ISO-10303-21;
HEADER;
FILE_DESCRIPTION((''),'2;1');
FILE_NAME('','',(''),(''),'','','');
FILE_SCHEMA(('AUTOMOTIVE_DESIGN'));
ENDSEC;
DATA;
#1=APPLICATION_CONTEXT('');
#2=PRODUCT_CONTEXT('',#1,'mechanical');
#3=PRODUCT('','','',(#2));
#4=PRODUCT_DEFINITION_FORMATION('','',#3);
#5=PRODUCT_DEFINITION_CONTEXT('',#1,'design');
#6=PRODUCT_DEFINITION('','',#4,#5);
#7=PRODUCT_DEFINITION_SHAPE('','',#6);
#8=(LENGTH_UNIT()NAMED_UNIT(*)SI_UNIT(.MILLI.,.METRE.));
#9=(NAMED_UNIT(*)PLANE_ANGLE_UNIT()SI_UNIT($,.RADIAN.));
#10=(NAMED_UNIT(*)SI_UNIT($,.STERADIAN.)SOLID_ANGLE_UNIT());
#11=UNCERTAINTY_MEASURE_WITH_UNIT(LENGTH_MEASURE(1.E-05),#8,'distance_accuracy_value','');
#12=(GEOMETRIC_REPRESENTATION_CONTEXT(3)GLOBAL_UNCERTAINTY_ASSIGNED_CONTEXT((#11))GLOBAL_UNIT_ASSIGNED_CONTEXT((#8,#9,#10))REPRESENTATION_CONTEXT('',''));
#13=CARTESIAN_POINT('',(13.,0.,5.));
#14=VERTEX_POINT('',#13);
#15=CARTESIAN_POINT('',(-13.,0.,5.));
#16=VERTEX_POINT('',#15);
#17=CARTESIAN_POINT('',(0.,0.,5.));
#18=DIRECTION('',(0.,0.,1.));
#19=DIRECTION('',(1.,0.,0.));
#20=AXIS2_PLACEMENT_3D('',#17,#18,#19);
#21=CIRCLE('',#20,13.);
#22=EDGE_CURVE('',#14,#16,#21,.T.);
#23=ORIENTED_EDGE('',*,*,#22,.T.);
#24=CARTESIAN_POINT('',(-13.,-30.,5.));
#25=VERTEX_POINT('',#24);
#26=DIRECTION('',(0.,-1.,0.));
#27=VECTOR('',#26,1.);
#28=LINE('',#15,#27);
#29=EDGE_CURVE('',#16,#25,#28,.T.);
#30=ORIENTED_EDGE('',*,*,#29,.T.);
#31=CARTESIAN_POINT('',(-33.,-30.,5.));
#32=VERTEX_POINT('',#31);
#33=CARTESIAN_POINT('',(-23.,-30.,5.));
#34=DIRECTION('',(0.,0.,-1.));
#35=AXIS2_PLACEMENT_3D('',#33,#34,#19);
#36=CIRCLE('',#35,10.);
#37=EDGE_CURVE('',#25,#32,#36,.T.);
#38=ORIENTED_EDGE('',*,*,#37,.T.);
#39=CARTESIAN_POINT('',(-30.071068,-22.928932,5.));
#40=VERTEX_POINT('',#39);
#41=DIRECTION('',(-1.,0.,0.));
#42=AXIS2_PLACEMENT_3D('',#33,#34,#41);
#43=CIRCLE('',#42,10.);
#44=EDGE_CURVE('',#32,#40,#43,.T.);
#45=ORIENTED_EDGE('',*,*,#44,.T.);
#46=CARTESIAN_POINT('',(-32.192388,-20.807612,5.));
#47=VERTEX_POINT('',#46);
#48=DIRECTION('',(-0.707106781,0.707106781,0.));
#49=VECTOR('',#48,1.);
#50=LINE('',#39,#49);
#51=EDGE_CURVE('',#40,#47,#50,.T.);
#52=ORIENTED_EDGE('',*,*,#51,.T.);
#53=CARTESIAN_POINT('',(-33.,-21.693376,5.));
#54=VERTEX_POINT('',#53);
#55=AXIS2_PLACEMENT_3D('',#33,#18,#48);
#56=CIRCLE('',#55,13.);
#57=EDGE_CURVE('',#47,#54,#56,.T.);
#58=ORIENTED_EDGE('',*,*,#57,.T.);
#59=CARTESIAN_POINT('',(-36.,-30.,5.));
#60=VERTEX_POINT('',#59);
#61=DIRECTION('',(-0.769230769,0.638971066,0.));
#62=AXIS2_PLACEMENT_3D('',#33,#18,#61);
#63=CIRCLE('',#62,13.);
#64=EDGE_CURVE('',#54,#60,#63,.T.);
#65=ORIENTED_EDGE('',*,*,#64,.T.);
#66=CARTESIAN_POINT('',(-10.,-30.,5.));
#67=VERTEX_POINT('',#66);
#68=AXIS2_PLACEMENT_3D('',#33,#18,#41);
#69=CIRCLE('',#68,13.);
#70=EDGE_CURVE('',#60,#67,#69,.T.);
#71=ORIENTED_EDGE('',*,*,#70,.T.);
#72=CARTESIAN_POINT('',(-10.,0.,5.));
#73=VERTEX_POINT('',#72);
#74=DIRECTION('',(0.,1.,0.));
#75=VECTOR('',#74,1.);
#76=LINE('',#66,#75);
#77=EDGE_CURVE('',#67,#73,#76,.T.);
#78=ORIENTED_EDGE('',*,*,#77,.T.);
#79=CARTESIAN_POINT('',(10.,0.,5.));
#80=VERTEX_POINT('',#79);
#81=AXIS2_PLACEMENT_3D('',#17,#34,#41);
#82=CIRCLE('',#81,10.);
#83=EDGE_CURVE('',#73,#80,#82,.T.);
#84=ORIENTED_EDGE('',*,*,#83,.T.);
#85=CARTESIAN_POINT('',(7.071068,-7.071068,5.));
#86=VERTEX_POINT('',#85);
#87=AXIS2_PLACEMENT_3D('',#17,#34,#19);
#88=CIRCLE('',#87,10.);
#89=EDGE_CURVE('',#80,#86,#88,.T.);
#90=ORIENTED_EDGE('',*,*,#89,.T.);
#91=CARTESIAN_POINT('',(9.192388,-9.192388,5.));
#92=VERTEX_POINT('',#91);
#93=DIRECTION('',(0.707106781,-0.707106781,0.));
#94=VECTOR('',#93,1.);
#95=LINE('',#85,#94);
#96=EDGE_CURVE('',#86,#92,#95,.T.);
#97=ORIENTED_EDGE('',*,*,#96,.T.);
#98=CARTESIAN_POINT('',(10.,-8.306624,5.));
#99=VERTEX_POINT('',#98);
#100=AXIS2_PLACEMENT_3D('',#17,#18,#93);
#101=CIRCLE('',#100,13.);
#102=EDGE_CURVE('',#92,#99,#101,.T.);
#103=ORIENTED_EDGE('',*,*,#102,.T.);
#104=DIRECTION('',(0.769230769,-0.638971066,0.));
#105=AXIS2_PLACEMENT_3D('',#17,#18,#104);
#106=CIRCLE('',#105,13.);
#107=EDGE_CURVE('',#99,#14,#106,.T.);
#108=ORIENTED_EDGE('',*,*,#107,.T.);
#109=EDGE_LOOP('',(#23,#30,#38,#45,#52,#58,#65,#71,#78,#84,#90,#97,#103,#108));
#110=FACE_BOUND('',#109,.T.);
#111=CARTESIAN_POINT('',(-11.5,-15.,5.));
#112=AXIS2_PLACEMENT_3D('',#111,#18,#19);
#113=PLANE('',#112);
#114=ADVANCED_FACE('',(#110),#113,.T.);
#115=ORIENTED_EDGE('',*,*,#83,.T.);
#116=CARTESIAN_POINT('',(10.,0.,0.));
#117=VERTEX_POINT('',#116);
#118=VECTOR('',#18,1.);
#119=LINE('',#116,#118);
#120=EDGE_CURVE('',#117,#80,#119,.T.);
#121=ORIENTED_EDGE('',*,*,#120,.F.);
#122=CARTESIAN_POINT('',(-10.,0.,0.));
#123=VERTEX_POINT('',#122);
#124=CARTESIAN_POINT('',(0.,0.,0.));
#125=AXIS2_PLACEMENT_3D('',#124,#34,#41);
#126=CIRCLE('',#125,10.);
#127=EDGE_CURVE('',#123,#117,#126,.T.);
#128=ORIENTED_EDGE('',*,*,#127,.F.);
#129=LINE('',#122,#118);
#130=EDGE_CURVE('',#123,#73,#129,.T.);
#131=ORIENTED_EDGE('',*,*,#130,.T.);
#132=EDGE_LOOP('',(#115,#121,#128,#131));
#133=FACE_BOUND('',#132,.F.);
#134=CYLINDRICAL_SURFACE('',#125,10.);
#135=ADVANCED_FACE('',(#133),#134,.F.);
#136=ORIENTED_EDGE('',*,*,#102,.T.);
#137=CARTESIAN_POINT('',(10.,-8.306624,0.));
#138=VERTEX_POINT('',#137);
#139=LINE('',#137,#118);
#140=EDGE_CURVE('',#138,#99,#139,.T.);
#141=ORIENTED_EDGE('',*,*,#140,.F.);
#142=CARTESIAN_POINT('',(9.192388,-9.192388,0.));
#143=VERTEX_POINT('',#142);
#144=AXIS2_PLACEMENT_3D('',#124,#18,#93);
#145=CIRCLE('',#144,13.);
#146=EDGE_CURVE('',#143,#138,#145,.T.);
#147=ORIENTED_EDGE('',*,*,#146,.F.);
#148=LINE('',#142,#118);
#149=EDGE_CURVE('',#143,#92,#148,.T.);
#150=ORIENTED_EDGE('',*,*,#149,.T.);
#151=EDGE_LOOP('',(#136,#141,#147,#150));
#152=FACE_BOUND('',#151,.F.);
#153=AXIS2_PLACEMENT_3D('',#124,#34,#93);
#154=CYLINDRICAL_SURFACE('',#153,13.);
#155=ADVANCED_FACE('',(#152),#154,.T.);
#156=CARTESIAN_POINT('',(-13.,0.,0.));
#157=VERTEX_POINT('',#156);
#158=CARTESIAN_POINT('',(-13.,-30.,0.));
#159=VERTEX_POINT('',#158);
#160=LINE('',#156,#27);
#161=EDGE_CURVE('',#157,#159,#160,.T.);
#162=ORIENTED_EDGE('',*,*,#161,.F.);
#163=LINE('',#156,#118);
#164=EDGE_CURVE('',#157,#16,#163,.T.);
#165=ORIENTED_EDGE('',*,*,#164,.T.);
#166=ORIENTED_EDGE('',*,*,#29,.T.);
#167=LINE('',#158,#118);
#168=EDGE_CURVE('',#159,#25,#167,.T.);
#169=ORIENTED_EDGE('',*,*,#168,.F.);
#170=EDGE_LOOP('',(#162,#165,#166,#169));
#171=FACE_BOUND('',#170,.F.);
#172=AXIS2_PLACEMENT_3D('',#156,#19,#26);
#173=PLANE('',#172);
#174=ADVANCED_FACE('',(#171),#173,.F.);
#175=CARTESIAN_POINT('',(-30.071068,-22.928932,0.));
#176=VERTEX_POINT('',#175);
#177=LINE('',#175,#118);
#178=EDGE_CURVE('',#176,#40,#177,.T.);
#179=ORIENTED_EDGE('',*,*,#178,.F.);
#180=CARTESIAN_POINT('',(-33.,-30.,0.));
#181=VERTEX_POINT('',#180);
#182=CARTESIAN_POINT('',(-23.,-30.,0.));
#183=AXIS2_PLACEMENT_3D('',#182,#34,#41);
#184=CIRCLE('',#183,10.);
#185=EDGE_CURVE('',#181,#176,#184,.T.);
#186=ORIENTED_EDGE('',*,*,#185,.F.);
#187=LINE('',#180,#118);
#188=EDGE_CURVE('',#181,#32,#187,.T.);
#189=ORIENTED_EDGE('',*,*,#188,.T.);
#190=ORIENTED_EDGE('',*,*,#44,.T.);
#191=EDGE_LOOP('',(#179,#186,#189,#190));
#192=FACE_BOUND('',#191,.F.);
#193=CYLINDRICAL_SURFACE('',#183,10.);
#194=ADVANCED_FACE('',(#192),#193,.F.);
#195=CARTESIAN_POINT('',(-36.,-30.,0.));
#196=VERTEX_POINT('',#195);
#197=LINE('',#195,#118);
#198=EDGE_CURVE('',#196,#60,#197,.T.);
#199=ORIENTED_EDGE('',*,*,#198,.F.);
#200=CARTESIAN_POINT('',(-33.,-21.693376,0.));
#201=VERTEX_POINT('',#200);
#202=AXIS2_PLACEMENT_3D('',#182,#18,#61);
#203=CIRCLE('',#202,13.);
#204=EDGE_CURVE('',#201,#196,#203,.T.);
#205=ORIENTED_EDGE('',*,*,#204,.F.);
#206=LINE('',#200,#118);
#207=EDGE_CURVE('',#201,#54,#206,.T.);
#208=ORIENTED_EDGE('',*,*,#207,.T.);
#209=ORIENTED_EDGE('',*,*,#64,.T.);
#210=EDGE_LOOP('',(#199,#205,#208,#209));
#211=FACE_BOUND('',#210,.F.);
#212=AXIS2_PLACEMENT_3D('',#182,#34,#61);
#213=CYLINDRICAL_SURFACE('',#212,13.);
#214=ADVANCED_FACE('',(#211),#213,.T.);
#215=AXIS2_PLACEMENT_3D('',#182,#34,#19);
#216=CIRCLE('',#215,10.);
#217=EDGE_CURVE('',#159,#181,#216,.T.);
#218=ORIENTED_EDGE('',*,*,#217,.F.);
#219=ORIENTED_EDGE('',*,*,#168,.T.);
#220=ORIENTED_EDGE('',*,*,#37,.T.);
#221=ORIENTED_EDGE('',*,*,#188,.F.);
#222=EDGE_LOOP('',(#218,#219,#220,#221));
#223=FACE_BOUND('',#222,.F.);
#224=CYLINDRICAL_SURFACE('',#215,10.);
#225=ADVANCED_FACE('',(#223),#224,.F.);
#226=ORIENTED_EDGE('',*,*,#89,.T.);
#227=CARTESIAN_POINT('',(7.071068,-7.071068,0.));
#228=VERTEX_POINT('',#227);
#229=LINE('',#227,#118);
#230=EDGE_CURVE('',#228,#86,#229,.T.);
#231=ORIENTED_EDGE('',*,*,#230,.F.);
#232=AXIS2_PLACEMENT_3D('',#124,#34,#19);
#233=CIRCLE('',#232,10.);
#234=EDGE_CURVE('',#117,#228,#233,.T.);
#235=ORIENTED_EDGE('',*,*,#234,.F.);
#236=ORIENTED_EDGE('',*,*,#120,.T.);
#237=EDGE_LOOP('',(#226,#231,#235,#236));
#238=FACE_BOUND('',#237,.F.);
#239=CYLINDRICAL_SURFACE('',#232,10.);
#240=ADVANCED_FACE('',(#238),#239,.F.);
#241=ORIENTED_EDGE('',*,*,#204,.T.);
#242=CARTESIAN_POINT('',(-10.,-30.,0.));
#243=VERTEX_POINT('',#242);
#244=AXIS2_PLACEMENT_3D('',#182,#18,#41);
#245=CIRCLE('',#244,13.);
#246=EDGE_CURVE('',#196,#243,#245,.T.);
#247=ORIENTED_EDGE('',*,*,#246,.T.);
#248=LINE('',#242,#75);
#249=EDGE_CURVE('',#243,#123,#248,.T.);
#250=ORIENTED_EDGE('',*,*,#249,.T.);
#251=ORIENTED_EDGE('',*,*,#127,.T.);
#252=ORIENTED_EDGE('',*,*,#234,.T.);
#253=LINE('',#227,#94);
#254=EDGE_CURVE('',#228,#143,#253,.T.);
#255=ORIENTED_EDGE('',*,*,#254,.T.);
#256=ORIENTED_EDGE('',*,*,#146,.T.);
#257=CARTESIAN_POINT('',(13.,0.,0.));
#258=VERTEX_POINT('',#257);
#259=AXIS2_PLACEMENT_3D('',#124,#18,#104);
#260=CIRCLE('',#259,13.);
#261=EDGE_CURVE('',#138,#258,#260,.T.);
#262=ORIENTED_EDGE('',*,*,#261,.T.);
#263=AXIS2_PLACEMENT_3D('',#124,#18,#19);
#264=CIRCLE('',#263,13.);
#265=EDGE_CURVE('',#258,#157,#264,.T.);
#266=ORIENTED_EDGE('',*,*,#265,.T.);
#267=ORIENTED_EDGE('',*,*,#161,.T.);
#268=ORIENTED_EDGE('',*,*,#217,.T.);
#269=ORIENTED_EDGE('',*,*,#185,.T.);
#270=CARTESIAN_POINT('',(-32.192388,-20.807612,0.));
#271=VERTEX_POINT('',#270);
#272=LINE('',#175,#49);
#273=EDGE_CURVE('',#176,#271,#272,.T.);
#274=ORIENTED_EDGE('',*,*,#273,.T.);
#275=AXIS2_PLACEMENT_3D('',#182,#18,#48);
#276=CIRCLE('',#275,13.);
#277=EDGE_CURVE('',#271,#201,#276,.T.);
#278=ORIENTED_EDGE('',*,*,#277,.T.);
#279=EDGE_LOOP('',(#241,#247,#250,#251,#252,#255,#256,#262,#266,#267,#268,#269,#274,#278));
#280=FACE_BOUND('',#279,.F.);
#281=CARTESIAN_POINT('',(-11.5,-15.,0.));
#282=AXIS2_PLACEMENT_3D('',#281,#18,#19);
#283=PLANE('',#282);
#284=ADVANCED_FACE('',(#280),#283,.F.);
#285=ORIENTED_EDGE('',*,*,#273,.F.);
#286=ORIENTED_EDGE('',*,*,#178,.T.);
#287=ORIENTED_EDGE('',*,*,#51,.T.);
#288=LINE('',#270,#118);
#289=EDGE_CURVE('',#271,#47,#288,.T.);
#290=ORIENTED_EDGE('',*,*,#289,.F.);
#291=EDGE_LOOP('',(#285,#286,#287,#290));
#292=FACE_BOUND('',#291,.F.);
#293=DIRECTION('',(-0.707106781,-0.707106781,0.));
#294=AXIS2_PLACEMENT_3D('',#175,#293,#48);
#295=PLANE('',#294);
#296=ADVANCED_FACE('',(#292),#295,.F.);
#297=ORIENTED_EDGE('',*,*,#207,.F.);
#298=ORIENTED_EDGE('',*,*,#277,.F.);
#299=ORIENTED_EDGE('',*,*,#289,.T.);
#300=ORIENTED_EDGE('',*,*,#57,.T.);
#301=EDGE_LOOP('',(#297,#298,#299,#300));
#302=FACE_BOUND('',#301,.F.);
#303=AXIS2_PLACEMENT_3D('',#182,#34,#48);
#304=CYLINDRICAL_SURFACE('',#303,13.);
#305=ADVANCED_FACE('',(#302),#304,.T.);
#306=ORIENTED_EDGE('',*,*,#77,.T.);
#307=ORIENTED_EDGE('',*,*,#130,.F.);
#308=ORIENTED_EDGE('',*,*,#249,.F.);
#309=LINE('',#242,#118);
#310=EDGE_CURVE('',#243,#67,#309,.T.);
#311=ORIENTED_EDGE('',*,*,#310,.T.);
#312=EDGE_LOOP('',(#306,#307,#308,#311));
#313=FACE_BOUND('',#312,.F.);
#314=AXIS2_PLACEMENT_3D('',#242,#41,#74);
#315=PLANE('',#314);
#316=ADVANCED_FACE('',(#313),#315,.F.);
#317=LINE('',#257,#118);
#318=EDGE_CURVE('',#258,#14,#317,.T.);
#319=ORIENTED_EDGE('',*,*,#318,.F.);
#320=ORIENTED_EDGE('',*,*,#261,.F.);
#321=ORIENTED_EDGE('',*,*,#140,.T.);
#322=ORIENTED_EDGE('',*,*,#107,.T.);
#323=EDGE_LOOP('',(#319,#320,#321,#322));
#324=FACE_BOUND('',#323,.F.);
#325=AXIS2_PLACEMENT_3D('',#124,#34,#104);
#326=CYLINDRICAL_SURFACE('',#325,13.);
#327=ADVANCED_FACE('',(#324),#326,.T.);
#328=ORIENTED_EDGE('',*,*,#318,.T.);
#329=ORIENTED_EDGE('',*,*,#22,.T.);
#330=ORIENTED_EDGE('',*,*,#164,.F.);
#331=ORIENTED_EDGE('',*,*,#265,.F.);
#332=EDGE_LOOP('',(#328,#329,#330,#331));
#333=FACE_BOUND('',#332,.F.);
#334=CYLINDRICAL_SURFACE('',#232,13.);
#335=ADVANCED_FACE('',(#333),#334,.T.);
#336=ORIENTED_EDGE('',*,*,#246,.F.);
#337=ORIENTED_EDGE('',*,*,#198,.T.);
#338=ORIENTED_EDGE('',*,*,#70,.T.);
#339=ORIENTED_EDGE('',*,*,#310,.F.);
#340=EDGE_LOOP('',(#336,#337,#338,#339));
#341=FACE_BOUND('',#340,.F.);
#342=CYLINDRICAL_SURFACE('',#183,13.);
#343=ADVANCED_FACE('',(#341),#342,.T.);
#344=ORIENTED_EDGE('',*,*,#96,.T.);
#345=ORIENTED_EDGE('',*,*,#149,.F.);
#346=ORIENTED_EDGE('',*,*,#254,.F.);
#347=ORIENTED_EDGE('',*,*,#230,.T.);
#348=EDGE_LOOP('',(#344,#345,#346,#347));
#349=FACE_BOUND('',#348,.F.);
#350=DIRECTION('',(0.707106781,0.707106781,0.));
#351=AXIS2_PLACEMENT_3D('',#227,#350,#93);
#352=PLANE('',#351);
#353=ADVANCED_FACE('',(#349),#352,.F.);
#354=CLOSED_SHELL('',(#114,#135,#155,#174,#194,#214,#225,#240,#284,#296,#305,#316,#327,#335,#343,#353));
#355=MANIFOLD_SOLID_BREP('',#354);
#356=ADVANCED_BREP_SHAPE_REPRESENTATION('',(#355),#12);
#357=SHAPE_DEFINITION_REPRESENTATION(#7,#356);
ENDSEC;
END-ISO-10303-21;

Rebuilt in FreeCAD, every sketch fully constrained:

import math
import FreeCAD as App
import Part
import Sketcher
from FreeCAD import Vector
Q = App.Units.Quantity

doc = App.newDocument("Part")
body = doc.addObject("PartDesign::Body", "Body")

sketch1 = doc.addObject("Sketcher::SketchObject", "Sketch")
body.addObject(sketch1)
sketch1.AttachmentSupport = (doc.XY_Plane, [""])
sketch1.MapMode = "FlatFace"
sketch1.addGeometry(Part.LineSegment(Vector(-10, -30, 0), Vector(-10, 0, 0)), False)
sketch1.addGeometry(Part.ArcOfCircle(Part.Circle(Vector(0, 0, 0), Vector(0, 0, 1), 10), math.radians(0), math.radians(180)), False)
sketch1.addGeometry(Part.ArcOfCircle(Part.Circle(Vector(0, 0, 0), Vector(0, 0, 1), 10), math.radians(-45), math.radians(0)), False)
sketch1.addGeometry(Part.LineSegment(Vector(7.1, -7.1, 0), Vector(9.2, -9.2, 0)), False)
sketch1.addGeometry(Part.ArcOfCircle(Part.Circle(Vector(0, 0, 0), Vector(0, 0, 1), 13), math.radians(-45), math.radians(-39.72)), False)
sketch1.addGeometry(Part.ArcOfCircle(Part.Circle(Vector(0, 0, 0), Vector(0, 0, 1), 13), math.radians(-40), math.radians(0)), False)
sketch1.addGeometry(Part.ArcOfCircle(Part.Circle(Vector(0, 0, 0), Vector(0, 0, 1), 13), math.radians(0), math.radians(180)), False)
sketch1.addGeometry(Part.LineSegment(Vector(-13, 0, 0), Vector(-13, -30, 0)), False)
sketch1.addGeometry(Part.ArcOfCircle(Part.Circle(Vector(-23, -30, 0), Vector(0, 0, 1), 10), math.radians(180), math.radians(360)), False)
sketch1.addGeometry(Part.ArcOfCircle(Part.Circle(Vector(-23, -30, 0), Vector(0, 0, 1), 10), math.radians(135), math.radians(180)), False)
sketch1.addGeometry(Part.LineSegment(Vector(-30.1, -22.9, 0), Vector(-32.2, -20.8, 0)), False)
sketch1.addGeometry(Part.ArcOfCircle(Part.Circle(Vector(-23, -30, 0), Vector(0, 0, 1), 13), math.radians(135), math.radians(140.28)), False)
sketch1.addGeometry(Part.ArcOfCircle(Part.Circle(Vector(-23, -30, 0), Vector(0, 0, 1), 13), math.radians(140), math.radians(180)), False)
sketch1.addGeometry(Part.ArcOfCircle(Part.Circle(Vector(-23, -30, 0), Vector(0, 0, 1), 13), math.radians(180), math.radians(360)), False)
sketch1.addConstraint(Sketcher.Constraint("Tangent", 0, 2, 1, 2))
sketch1.addConstraint(Sketcher.Constraint("Tangent", 1, 1, 2, 2))
sketch1.addConstraint(Sketcher.Constraint("Coincident", 2, 1, 3, 1))
sketch1.addConstraint(Sketcher.Constraint("Coincident", 3, 2, 4, 1))
sketch1.addConstraint(Sketcher.Constraint("Tangent", 4, 2, 5, 1))
sketch1.addConstraint(Sketcher.Constraint("Tangent", 5, 2, 6, 1))
sketch1.addConstraint(Sketcher.Constraint("Tangent", 6, 2, 7, 1))
sketch1.addConstraint(Sketcher.Constraint("Tangent", 7, 2, 8, 2))
sketch1.addConstraint(Sketcher.Constraint("Tangent", 8, 1, 9, 2))
sketch1.addConstraint(Sketcher.Constraint("Coincident", 9, 1, 10, 1))
sketch1.addConstraint(Sketcher.Constraint("Coincident", 10, 2, 11, 1))
sketch1.addConstraint(Sketcher.Constraint("Tangent", 11, 2, 12, 1))
sketch1.addConstraint(Sketcher.Constraint("Tangent", 12, 2, 13, 1))
sketch1.addConstraint(Sketcher.Constraint("Tangent", 13, 2, 0, 1))
sketch1.addConstraint(Sketcher.Constraint("Vertical", 0))
sketch1.addConstraint(Sketcher.Constraint("Vertical", 7))
sketch1.addConstraint(Sketcher.Constraint("Coincident", 1, 3, -1, 1))
sketch1.addConstraint(Sketcher.Constraint("Coincident", 4, 3, -1, 1))
sketch1.addConstraint(Sketcher.Constraint("Coincident", 6, 3, -1, 1))
sketch1.addConstraint(Sketcher.Constraint("Coincident", 11, 3, 8, 3))
sketch1.addConstraint(Sketcher.Constraint("Coincident", 13, 3, 8, 3))
sketch1.addConstraint(Sketcher.Constraint("Equal", 1, 2))
sketch1.addConstraint(Sketcher.Constraint("Equal", 2, 8))
sketch1.addConstraint(Sketcher.Constraint("Equal", 8, 9))
sketch1.addConstraint(Sketcher.Constraint("PointOnObject", 1, 1, -1))
sketch1.addConstraint(Sketcher.Constraint("PointOnObject", 5, 2, -1))
sketch1.addConstraint(Sketcher.Constraint("Parallel", 3, 10))
sketch1.addConstraint(Sketcher.Constraint("Horizontal", 7, 2, 8, 1))
sketch1.addConstraint(Sketcher.Constraint("Horizontal", 8, 1, 12, 2))
sketch1.addConstraint(Sketcher.Constraint("Vertical", 1, 1, 4, 2))
sketch1.addConstraint(Sketcher.Constraint("Vertical", 8, 1, 11, 2))
sketch1.addConstraint(Sketcher.Constraint("Radius", 1, 10.0))
sketch1.addConstraint(Sketcher.Constraint("Radius", 4, 13.0))
sketch1.addConstraint(Sketcher.Constraint("DistanceY", 0, 1, 0, 2, 30.0))
sketch1.addConstraint(Sketcher.Constraint("Angle", 3, Q("-45 deg")))
sketch1.addConstraint(Sketcher.Constraint("DistanceX", -1, 1, 3, 2, 9.192388))
sketch1.addConstraint(Sketcher.Constraint("DistanceX", 10, 2, -1, 1, 32.192388))
pad1 = doc.addObject("PartDesign::Pad", "Pad")
body.addObject(pad1)
pad1.Profile = sketch1
pad1.Length = 5

doc.recompute()
